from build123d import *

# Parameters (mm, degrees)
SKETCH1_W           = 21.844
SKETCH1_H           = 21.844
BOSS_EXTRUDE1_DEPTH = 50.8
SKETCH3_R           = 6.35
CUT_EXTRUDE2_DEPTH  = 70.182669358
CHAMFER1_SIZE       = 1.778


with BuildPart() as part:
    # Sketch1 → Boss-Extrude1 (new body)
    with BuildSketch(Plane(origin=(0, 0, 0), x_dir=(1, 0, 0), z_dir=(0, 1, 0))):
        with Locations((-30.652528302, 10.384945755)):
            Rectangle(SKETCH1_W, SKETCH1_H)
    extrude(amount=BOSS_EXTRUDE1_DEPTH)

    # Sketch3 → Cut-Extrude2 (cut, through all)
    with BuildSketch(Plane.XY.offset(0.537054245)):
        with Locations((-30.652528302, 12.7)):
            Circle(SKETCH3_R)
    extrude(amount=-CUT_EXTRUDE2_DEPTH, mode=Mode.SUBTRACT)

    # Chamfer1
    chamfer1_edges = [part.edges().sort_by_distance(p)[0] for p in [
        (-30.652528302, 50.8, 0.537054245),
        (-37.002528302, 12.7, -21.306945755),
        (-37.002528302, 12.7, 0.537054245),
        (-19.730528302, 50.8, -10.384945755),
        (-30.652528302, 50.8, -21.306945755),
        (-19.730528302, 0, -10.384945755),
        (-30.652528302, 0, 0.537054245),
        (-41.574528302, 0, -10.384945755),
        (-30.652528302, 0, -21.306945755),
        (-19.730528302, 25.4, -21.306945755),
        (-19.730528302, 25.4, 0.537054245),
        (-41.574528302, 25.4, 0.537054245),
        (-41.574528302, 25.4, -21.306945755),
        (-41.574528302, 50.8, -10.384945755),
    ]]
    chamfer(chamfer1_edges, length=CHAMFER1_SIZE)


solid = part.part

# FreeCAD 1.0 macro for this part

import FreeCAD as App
import Part
import Sketcher
Q = App.Units.Quantity

doc = App.newDocument("Part")
params = doc.addObject("Spreadsheet::Sheet", "Params")
for row, (alias, value) in enumerate([
    ("sketch1_width", "0.86 in"),
    ("pad1_length", "2 in"),
    ("sketch2_diameter", "0.5 in"),
    ("chamfer_size", "0.07 in"),
], start=1):
    params.set(f"A{row}", alias)
    params.set(f"B{row}", "=" + value)
    params.setAlias(f"B{row}", alias)

body = doc.addObject("PartDesign::Body", "Body")

# Sketch on XZ plane
sketch1 = body.newObject("Sketcher::SketchObject", "Sketch")
sketch1.AttachmentSupport = (doc.getObject("XZ_Plane"), [""])
sketch1.MapMode = "FlatFace"
sketch1.addGeometry(Part.LineSegment(App.Vector(-41.574528, -21.306946, 0), App.Vector(-41.574528, 0.537054, 0)), False)
sketch1.addGeometry(Part.LineSegment(App.Vector(-41.574528, 0.537054, 0), App.Vector(-19.730528, 0.537054, 0)), False)
sketch1.addGeometry(Part.LineSegment(App.Vector(-19.730528, 0.537054, 0), App.Vector(-19.730528, -21.306946, 0)), False)
sketch1.addGeometry(Part.LineSegment(App.Vector(-19.730528, -21.306946, 0), App.Vector(-41.574528, -21.306946, 0)), False)
sketch1.addConstraint(Sketcher.Constraint("Coincident", 0, 2, 1, 1))
sketch1.addConstraint(Sketcher.Constraint("Coincident", 1, 2, 2, 1))
sketch1.addConstraint(Sketcher.Constraint("Coincident", 2, 2, 3, 1))
sketch1.addConstraint(Sketcher.Constraint("Coincident", 3, 2, 0, 1))
sketch1.addConstraint(Sketcher.Constraint("Vertical", 0))
sketch1.addConstraint(Sketcher.Constraint("Horizontal", 1))
sketch1.addConstraint(Sketcher.Constraint("Vertical", 2))
sketch1.addConstraint(Sketcher.Constraint("Horizontal", 3))
sketch1.addConstraint(Sketcher.Constraint("Equal", 3, 0))
sketch1.addConstraint(Sketcher.Constraint("DistanceX", 1, 1, 1, 2, Q("0.86 in")))
sketch1.addConstraint(Sketcher.Constraint("DistanceX", 0, 2, -1, 1, Q("41.574528 mm")))
sketch1.addConstraint(Sketcher.Constraint("DistanceY", -1, 1, 0, 2, Q("0.537054 mm")))
sketch1.setExpression("Constraints[9]", "Params.sketch1_width")
pad1 = body.newObject("PartDesign::Pad", "Pad")
pad1.Profile = sketch1
pad1.setExpression("Length", "Params.pad1_length")
pad1.Reversed = True

# Sketch on XY plane
sketch2 = body.newObject("Sketcher::SketchObject", "Sketch001")
sketch2.AttachmentSupport = (doc.getObject("XY_Plane"), [""])
sketch2.MapMode = "FlatFace"
sketch2.AttachmentOffset = App.Placement(App.Vector(0, 0, 0.537054), App.Rotation())
sketch2.addGeometry(Part.Circle(App.Vector(-30.652528, 12.7, 0), App.Vector(0, 0, 1), 6.35), False)
sketch2.addConstraint(Sketcher.Constraint("Diameter", 0, Q("0.5 in")))
sketch2.addConstraint(Sketcher.Constraint("DistanceY", -1, 1, 0, 3, Q("0.5 in")))
sketch2.addConstraint(Sketcher.Constraint("DistanceX", 0, 3, -1, 1, Q("30.652528 mm")))
sketch2.setExpression("Constraints[0]", "Params.sketch2_diameter")
pocket1 = body.newObject("PartDesign::Pocket", "Pocket")
pocket1.Profile = sketch2
pocket1.Type = "ThroughAll"
doc.recompute()

chamfer = body.newObject("PartDesign::Chamfer", "Chamfer")
chamfer.Base = (pocket1, ["Edge1"])
chamfer.UseAllEdges = True
chamfer.setExpression("Size", "Params.chamfer_size")

doc.recompute()
